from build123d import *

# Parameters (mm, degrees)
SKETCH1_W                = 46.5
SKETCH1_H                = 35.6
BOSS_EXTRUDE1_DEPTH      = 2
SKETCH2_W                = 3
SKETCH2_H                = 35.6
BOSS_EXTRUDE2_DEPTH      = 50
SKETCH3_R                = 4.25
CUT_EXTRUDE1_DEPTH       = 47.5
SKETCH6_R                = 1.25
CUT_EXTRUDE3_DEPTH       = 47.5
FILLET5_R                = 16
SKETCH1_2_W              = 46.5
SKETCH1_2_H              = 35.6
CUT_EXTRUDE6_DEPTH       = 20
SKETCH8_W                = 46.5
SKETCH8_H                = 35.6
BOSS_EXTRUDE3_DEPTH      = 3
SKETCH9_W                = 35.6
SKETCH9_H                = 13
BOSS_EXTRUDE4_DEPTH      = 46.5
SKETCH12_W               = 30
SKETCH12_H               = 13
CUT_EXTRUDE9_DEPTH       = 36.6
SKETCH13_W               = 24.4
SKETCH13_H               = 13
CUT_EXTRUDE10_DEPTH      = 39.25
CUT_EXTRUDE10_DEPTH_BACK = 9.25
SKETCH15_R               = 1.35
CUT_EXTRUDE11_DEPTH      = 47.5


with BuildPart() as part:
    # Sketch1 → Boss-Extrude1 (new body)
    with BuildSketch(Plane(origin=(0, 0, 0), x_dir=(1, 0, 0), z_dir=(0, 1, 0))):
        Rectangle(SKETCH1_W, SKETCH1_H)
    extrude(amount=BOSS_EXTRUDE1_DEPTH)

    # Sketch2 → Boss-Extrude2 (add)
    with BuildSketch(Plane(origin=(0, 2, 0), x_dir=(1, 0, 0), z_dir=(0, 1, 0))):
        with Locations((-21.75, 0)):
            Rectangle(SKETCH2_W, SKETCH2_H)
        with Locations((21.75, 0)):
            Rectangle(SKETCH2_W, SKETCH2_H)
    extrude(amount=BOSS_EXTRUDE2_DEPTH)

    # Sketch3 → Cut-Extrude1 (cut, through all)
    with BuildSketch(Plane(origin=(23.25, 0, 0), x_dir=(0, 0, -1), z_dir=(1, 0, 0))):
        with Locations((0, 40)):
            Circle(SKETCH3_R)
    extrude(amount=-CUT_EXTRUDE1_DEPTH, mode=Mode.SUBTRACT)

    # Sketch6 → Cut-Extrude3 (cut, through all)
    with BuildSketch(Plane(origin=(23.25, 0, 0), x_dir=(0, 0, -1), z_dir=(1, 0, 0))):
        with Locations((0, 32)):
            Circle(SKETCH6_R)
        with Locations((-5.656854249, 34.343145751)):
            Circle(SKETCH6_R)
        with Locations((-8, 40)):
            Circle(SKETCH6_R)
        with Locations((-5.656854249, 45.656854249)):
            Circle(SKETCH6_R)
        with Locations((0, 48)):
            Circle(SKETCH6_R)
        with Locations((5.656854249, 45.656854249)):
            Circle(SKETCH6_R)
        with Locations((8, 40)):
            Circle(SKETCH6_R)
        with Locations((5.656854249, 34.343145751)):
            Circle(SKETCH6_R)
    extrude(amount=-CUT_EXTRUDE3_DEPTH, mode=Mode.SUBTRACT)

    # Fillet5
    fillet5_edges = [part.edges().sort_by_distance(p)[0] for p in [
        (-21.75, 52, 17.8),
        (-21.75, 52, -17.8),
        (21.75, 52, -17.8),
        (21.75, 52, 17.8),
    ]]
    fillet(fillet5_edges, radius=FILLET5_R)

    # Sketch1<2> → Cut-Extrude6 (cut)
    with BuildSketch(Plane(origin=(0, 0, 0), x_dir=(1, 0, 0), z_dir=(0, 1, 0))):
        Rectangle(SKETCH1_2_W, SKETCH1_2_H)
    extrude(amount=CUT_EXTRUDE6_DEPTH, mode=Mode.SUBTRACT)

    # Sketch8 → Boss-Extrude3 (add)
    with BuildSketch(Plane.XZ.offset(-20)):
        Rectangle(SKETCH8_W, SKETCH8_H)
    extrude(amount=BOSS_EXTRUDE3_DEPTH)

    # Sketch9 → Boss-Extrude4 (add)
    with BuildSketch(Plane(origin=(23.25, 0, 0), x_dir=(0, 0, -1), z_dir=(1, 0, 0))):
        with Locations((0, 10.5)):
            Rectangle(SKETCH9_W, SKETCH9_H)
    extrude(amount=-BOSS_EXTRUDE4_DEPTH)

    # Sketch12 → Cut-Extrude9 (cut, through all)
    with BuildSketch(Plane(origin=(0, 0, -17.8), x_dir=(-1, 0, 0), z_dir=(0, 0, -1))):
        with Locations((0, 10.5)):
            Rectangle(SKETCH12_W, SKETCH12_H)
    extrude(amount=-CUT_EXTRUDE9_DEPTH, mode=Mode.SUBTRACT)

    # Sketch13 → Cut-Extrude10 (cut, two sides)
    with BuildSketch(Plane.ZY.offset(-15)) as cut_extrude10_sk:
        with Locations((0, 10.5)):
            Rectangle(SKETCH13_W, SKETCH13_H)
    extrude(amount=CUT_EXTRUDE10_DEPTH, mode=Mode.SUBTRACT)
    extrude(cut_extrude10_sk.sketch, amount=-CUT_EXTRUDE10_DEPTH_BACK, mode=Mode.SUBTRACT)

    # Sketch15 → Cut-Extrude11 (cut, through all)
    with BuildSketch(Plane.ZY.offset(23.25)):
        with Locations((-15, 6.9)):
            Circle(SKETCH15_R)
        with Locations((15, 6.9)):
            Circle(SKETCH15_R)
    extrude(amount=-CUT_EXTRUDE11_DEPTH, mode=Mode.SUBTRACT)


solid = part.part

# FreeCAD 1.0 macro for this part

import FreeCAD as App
import Part
import Sketcher


def edges_at(feature, points):
    """Names of the edges that pass closest to the given points."""
    edges = feature.Shape.Edges
    near = lambda p: min(range(len(edges)), key=lambda i: edges[i].distToShape(Part.Vertex(*p))[0])
    return sorted({f"Edge{near(p) + 1}" for p in points})


def add_polygon(sketch, points):
    """Adds a closed chain of lines whose ends are joined by coincident constraints."""
    first, n = sketch.GeometryCount, len(points)
    for a, b in zip(points, points[1:] + points[:1]):
        sketch.addGeometry(Part.LineSegment(App.Vector(*a, 0), App.Vector(*b, 0)), False)
    for i in range(n):
        sketch.addConstraint(Sketcher.Constraint("Coincident", first + i, 2, first + (i + 1) % n, 1))

doc = App.newDocument("Part")
body = doc.addObject("PartDesign::Body", "Body")
body.AllowCompound = True

sketch1 = body.newObject("Sketcher::SketchObject", "Sketch")
sketch1.AttachmentSupport = (doc.getObject("XZ_Plane"), [""])
sketch1.MapMode = "FlatFace"
add_polygon(sketch1, [(-23, -18), (-23, 18), (23, 18), (23, -18)])
sketch1.addConstraint(Sketcher.Constraint("Vertical", 0))
sketch1.addConstraint(Sketcher.Constraint("Horizontal", 1))
sketch1.addConstraint(Sketcher.Constraint("Vertical", 2))
sketch1.addConstraint(Sketcher.Constraint("Horizontal", 3))
sketch1.addConstraint(Sketcher.Constraint("Symmetric", 0, 2, 2, 2, -1, 1))
sketch1.addConstraint(Sketcher.Constraint("DistanceX", 1, 1, 1, 2, 46.5))
sketch1.addConstraint(Sketcher.Constraint("DistanceY", 0, 1, 0, 2, 35.6))
pad1 = body.newObject("PartDesign::Pad", "Pad")
pad1.Profile = sketch1
pad1.Length = 2
pad1.Reversed = True

sketch2 = body.newObject("Sketcher::SketchObject", "Sketch001")
sketch2.AttachmentSupport = (doc.getObject("XZ_Plane"), [""])
sketch2.MapMode = "FlatFace"
sketch2.AttachmentOffset = App.Placement(App.Vector(0, 0, -2), App.Rotation())
add_polygon(sketch2, [(-23.2, -17.8), (-23.2, 17.8), (-20.2, 17.8), (-20.2, -17.8)])
add_polygon(sketch2, [(20.2, -17.8), (20.2, 17.8), (23.2, 17.8), (23.2, -17.8)])
sketch2.addConstraint(Sketcher.Constraint("Vertical", 0))
sketch2.addConstraint(Sketcher.Constraint("Horizontal", 1))
sketch2.addConstraint(Sketcher.Constraint("Vertical", 2))
sketch2.addConstraint(Sketcher.Constraint("Horizontal", 3))
sketch2.addConstraint(Sketcher.Constraint("Vertical", 4))
sketch2.addConstraint(Sketcher.Constraint("Horizontal", 5))
sketch2.addConstraint(Sketcher.Constraint("Vertical", 6))
sketch2.addConstraint(Sketcher.Constraint("Horizontal", 7))
sketch2.addConstraint(Sketcher.Constraint("Symmetric", 2, 2, 4, 2, -1, 1))
sketch2.addConstraint(Sketcher.Constraint("Symmetric", 0, 2, 6, 2, -1, 1))
sketch2.addConstraint(Sketcher.Constraint("Horizontal", 1, 2, 4, 2))
sketch2.addConstraint(Sketcher.Constraint("DistanceX", 1, 1, 1, 2, 3.0))
sketch2.addConstraint(Sketcher.Constraint("DistanceY", 0, 1, 0, 2, 35.6))
sketch2.addConstraint(Sketcher.Constraint("DistanceX", 1, 2, 4, 2, 40.5))
pad2 = body.newObject("PartDesign::Pad", "Pad001")
pad2.Profile = sketch2
pad2.Length = 50
pad2.Reversed = True

sketch3 = body.newObject("Sketcher::SketchObject", "Sketch002")
sketch3.AttachmentSupport = (doc.getObject("YZ_Plane"), [""])
sketch3.MapMode = "FlatFace"
sketch3.AttachmentOffset = App.Placement(App.Vector(0, 0, 23.25), App.Rotation())
sketch3.addGeometry(Part.Circle(App.Vector(40, 0, 0), App.Vector(0, 0, 1), 4.2), False)
sketch3.addConstraint(Sketcher.Constraint("PointOnObject", 0, 3, -1))
sketch3.addConstraint(Sketcher.Constraint("Diameter", 0, 8.5))
sketch3.addConstraint(Sketcher.Constraint("DistanceX", -1, 1, 0, 3, 40.0))
pocket1 = body.newObject("PartDesign::Pocket", "Pocket")
pocket1.Profile = sketch3
pocket1.Type = "ThroughAll"

sketch4 = body.newObject("Sketcher::SketchObject", "Sketch003")
sketch4.AttachmentSupport = (doc.getObject("YZ_Plane"), [""])
sketch4.MapMode = "FlatFace"
sketch4.AttachmentOffset = App.Placement(App.Vector(0, 0, 23.25), App.Rotation())
sketch4.addGeometry(Part.Circle(App.Vector(32, 0, 0), App.Vector(0, 0, 1), 1.2), False)
sketch4.addGeometry(Part.Circle(App.Vector(34.3, 5.7, 0), App.Vector(0, 0, 1), 1.2), False)
sketch4.addGeometry(Part.Circle(App.Vector(40, 8, 0), App.Vector(0, 0, 1), 1.2), False)
sketch4.addGeometry(Part.Circle(App.Vector(45.7, 5.7, 0), App.Vector(0, 0, 1), 1.2), False)
sketch4.addGeometry(Part.Circle(App.Vector(48, 0, 0), App.Vector(0, 0, 1), 1.2), False)
sketch4.addGeometry(Part.Circle(App.Vector(45.7, -5.7, 0), App.Vector(0, 0, 1), 1.2), False)
sketch4.addGeometry(Part.Circle(App.Vector(40, -8, 0), App.Vector(0, 0, 1), 1.2), False)
sketch4.addGeometry(Part.Circle(App.Vector(34.3, -5.7, 0), App.Vector(0, 0, 1), 1.2), False)
sketch4.addConstraint(Sketcher.Constraint("Equal", 0, 1))
sketch4.addConstraint(Sketcher.Constraint("Equal", 1, 2))
sketch4.addConstraint(Sketcher.Constraint("Equal", 2, 3))
sketch4.addConstraint(Sketcher.Constraint("Equal", 3, 4))
sketch4.addConstraint(Sketcher.Constraint("Equal", 4, 5))
sketch4.addConstraint(Sketcher.Constraint("Equal", 5, 6))
sketch4.addConstraint(Sketcher.Constraint("Equal", 6, 7))
sketch4.addConstraint(Sketcher.Constraint("Symmetric", 3, 3, 5, 3, -1))
sketch4.addConstraint(Sketcher.Constraint("Symmetric", 2, 3, 6, 3, -1))
sketch4.addConstraint(Sketcher.Constraint("Symmetric", 1, 3, 7, 3, -1))
sketch4.addConstraint(Sketcher.Constraint("PointOnObject", 0, 3, -1))
sketch4.addConstraint(Sketcher.Constraint("PointOnObject", 4, 3, -1))
sketch4.addConstraint(Sketcher.Constraint("Horizontal", 1, 3, 3, 3))
sketch4.addConstraint(Sketcher.Constraint("Diameter", 0, 2.5))
sketch4.addConstraint(Sketcher.Constraint("DistanceX", -1, 1, 0, 3, 32.0))
sketch4.addConstraint(Sketcher.Constraint("DistanceX", -1, 1, 2, 3, 40.0))
sketch4.addConstraint(Sketcher.Constraint("DistanceY", -1, 1, 2, 3, 8.0))
sketch4.addConstraint(Sketcher.Constraint("DistanceX", -1, 1, 4, 3, 48.0))
sketch4.addConstraint(Sketcher.Constraint("DistanceX", 1, 3, 3, 3, 11.313708))
sketch4.addConstraint(Sketcher.Constraint("DistanceY", 5, 3, 3, 3, 11.313708))
sketch4.addConstraint(Sketcher.Constraint("DistanceX", -1, 1, 1, 3, 34.343146))
pocket2 = body.newObject("PartDesign::Pocket", "Pocket001")
pocket2.Profile = sketch4
pocket2.Type = "ThroughAll"
doc.recompute()

fillet = body.newObject("PartDesign::Fillet", "Fillet")
fillet.Base = (pocket2, edges_at(pocket2, [
    (-21.75, 52, 17.8),
    (-21.75, 52, -17.8),
    (21.75, 52, -17.8),
    (21.75, 52, 17.8),
]))
fillet.Radius = 16

sketch5 = body.newObject("Sketcher::SketchObject", "Sketch004")
sketch5.AttachmentSupport = (doc.getObject("XZ_Plane"), [""])
sketch5.MapMode = "FlatFace"
add_polygon(sketch5, [(-23, -18), (-23, 18), (23, 18), (23, -18)])
sketch5.addConstraint(Sketcher.Constraint("Vertical", 0))
sketch5.addConstraint(Sketcher.Constraint("Horizontal", 1))
sketch5.addConstraint(Sketcher.Constraint("Vertical", 2))
sketch5.addConstraint(Sketcher.Constraint("Horizontal", 3))
sketch5.addConstraint(Sketcher.Constraint("Symmetric", 0, 2, 2, 2, -1, 1))
sketch5.addConstraint(Sketcher.Constraint("DistanceX", 1, 1, 1, 2, 46.5))
sketch5.addConstraint(Sketcher.Constraint("DistanceY", 0, 1, 0, 2, 35.6))
pocket3 = body.newObject("PartDesign::Pocket", "Pocket002")
pocket3.Profile = sketch5
pocket3.Length = 20

sketch6 = body.newObject("Sketcher::SketchObject", "Sketch005")
sketch6.AttachmentSupport = (doc.getObject("XZ_Plane"), [""])
sketch6.MapMode = "FlatFace"
sketch6.AttachmentOffset = App.Placement(App.Vector(0, 0, -20), App.Rotation())
add_polygon(sketch6, [(-23, 18), (-23, -18), (23, -18), (23, 18)])
sketch6.addConstraint(Sketcher.Constraint("Vertical", 0))
sketch6.addConstraint(Sketcher.Constraint("Horizontal", 1))
sketch6.addConstraint(Sketcher.Constraint("Vertical", 2))
sketch6.addConstraint(Sketcher.Constraint("Horizontal", 3))
sketch6.addConstraint(Sketcher.Constraint("Symmetric", 0, 2, 2, 2, -1, 1))
sketch6.addConstraint(Sketcher.Constraint("DistanceX", 1, 1, 1, 2, 46.5))
sketch6.addConstraint(Sketcher.Constraint("DistanceY", 0, 2, 0, 1, 35.6))
pad3 = body.newObject("PartDesign::Pad", "Pad002")
pad3.Profile = sketch6
pad3.Length = 3

sketch7 = body.newObject("Sketcher::SketchObject", "Sketch006")
sketch7.AttachmentSupport = (doc.getObject("YZ_Plane"), [""])
sketch7.MapMode = "FlatFace"
sketch7.AttachmentOffset = App.Placement(App.Vector(0, 0, 23.25), App.Rotation())
add_polygon(sketch7, [(17, 18), (4, 18), (4, -18), (17, -18)])
sketch7.addConstraint(Sketcher.Constraint("Horizontal", 0))
sketch7.addConstraint(Sketcher.Constraint("Vertical", 1))
sketch7.addConstraint(Sketcher.Constraint("Horizontal", 2))
sketch7.addConstraint(Sketcher.Constraint("Vertical", 3))
sketch7.addConstraint(Sketcher.Constraint("DistanceX", 0, 2, 0, 1, 13.0))
sketch7.addConstraint(Sketcher.Constraint("DistanceY", 1, 2, 1, 1, 35.6))
sketch7.addConstraint(Sketcher.Constraint("DistanceX", -1, 1, 0, 2, 4.0))
sketch7.addConstraint(Sketcher.Constraint("DistanceY", -1, 1, 0, 2, 17.8))
pad4 = body.newObject("PartDesign::Pad", "Pad003")
pad4.Profile = sketch7
pad4.Length = 46.5
pad4.Reversed = True

sketch8 = body.newObject("Sketcher::SketchObject", "Sketch007")
sketch8.AttachmentSupport = (doc.getObject("XY_Plane"), [""])
sketch8.MapMode = "FlatFace"
sketch8.AttachmentOffset = App.Placement(App.Vector(0, 0, -17.8), App.Rotation())
add_polygon(sketch8, [(15, 17), (15, 4), (-15, 4), (-15, 17)])
sketch8.addConstraint(Sketcher.Constraint("Vertical", 0))
sketch8.addConstraint(Sketcher.Constraint("Horizontal", 1))
sketch8.addConstraint(Sketcher.Constraint("Vertical", 2))
sketch8.addConstraint(Sketcher.Constraint("Horizontal", 3))
sketch8.addConstraint(Sketcher.Constraint("DistanceX", 1, 2, 1, 1, 30.0))
sketch8.addConstraint(Sketcher.Constraint("DistanceY", 0, 2, 0, 1, 13.0))
sketch8.addConstraint(Sketcher.Constraint("DistanceX", -1, 1, 0, 2, 15.0))
sketch8.addConstraint(Sketcher.Constraint("DistanceY", -1, 1, 0, 2, 4.0))
pocket4 = body.newObject("PartDesign::Pocket", "Pocket003")
pocket4.Profile = sketch8
pocket4.Type = "ThroughAll"
pocket4.Reversed = True

sketch9 = body.newObject("Sketcher::SketchObject", "Sketch008")
sketch9.AttachmentSupport = (doc.getObject("YZ_Plane"), [""])
sketch9.MapMode = "FlatFace"
sketch9.AttachmentOffset = App.Placement(App.Vector(0, 0, 15), App.Rotation())
add_polygon(sketch9, [(17, -12), (4, -12), (4, 12), (17, 12)])
sketch9.addConstraint(Sketcher.Constraint("Horizontal", 0))
sketch9.addConstraint(Sketcher.Constraint("Vertical", 1))
sketch9.addConstraint(Sketcher.Constraint("Horizontal", 2))
sketch9.addConstraint(Sketcher.Constraint("Vertical", 3))
sketch9.addConstraint(Sketcher.Constraint("DistanceX", 0, 2, 0, 1, 13.0))
sketch9.addConstraint(Sketcher.Constraint("DistanceY", 1, 1, 1, 2, 24.4))
sketch9.addConstraint(Sketcher.Constraint("DistanceX", -1, 1, 0, 2, 4.0))
sketch9.addConstraint(Sketcher.Constraint("DistanceY", 0, 2, -1, 1, 12.2))
pocket5 = body.newObject("PartDesign::Pocket", "Pocket004")
pocket5.Profile = sketch9
pocket5.Type = "ThroughAll"
pocket5.Midplane = True

sketch10 = body.newObject("Sketcher::SketchObject", "Sketch009")
sketch10.AttachmentSupport = (doc.getObject("YZ_Plane"), [""])
sketch10.MapMode = "FlatFace"
sketch10.AttachmentOffset = App.Placement(App.Vector(0, 0, -23.25), App.Rotation())
sketch10.addGeometry(Part.Circle(App.Vector(6.9, -15, 0), App.Vector(0, 0, 1), 1.4), False)
sketch10.addGeometry(Part.Circle(App.Vector(6.9, 15, 0), App.Vector(0, 0, 1), 1.4), False)
sketch10.addConstraint(Sketcher.Constraint("Equal", 0, 1))
sketch10.addConstraint(Sketcher.Constraint("Symmetric", 0, 3, 1, 3, -1))
sketch10.addConstraint(Sketcher.Constraint("Diameter", 0, 2.7))
sketch10.addConstraint(Sketcher.Constraint("DistanceY", 0, 3, -1, 1, 15.0))
sketch10.addConstraint(Sketcher.Constraint("DistanceX", -1, 1, 0, 3, 6.9))
pocket6 = body.newObject("PartDesign::Pocket", "Pocket005")
pocket6.Profile = sketch10
pocket6.Type = "ThroughAll"
pocket6.Reversed = True

doc.recompute()
